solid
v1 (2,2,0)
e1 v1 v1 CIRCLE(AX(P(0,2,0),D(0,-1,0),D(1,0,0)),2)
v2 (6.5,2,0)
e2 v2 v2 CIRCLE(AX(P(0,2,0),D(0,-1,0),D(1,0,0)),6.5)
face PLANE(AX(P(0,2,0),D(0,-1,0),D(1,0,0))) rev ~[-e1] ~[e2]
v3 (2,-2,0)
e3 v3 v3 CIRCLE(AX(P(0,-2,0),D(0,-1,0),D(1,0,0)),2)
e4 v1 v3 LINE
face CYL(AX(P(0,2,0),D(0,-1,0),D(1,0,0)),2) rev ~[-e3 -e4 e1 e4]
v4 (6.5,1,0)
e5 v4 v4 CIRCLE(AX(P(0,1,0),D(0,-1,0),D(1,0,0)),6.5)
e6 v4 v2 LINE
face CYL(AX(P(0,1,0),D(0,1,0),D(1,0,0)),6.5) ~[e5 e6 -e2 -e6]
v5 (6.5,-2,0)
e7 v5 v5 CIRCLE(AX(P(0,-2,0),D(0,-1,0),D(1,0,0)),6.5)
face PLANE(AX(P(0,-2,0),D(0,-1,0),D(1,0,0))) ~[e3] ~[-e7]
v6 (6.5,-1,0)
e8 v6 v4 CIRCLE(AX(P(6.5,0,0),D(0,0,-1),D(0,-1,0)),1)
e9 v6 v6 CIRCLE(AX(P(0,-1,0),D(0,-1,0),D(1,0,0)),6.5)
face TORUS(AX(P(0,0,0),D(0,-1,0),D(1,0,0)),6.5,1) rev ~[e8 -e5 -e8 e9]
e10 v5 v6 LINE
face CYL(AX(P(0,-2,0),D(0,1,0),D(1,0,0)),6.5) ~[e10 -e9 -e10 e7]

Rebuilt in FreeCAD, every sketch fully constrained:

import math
import FreeCAD as App
import Part
import Sketcher
from FreeCAD import Vector
Q = App.Units.Quantity

doc = App.newDocument("Part")
body = doc.addObject("PartDesign::Body", "Body")

# Sketch on XY plane
sketch1 = body.newObject("Sketcher::SketchObject", "Sketch")
sketch1.AttachmentSupport = (doc.getObject("XY_Plane"), [""])
sketch1.MapMode = "FlatFace"
sketch1.addGeometry(Part.LineSegment(Vector(2, 2, 0), Vector(2, -2, 0)), False)
sketch1.addGeometry(Part.LineSegment(Vector(2, -2, 0), Vector(6.5, -2, 0)), False)
sketch1.addGeometry(Part.LineSegment(Vector(6.5, -2, 0), Vector(6.5, -1, 0)), False)
sketch1.addGeometry(Part.ArcOfCircle(Part.Circle(Vector(6.5, 0, 0), Vector(0, 0, 1), 1), math.radians(90), math.radians(270)), False)
sketch1.addGeometry(Part.LineSegment(Vector(6.5, 1, 0), Vector(6.5, 2, 0)), False)
sketch1.addGeometry(Part.LineSegment(Vector(6.5, 2, 0), Vector(2, 2, 0)), False)
sketch1.addConstraint(Sketcher.Constraint("Coincident", 0, 2, 1, 1))
sketch1.addConstraint(Sketcher.Constraint("Coincident", 1, 2, 2, 1))
sketch1.addConstraint(Sketcher.Constraint("Coincident", 2, 2, 3, 2))
sketch1.addConstraint(Sketcher.Constraint("Coincident", 3, 1, 4, 1))
sketch1.addConstraint(Sketcher.Constraint("Coincident", 4, 2, 5, 1))
sketch1.addConstraint(Sketcher.Constraint("Coincident", 5, 2, 0, 1))
sketch1.addConstraint(Sketcher.Constraint("Vertical", 0))
sketch1.addConstraint(Sketcher.Constraint("Horizontal", 1))
sketch1.addConstraint(Sketcher.Constraint("Vertical", 2))
sketch1.addConstraint(Sketcher.Constraint("Vertical", 4))
sketch1.addConstraint(Sketcher.Constraint("Horizontal", 5))
sketch1.addConstraint(Sketcher.Constraint("Symmetric", 2, 2, 3, 1, -1))
sketch1.addConstraint(Sketcher.Constraint("Vertical", 3, 3, 1, 2))
sketch1.addConstraint(Sketcher.Constraint("Equal", 2, 4))
sketch1.addConstraint(Sketcher.Constraint("Radius", 3, Q("1 mm")))
sketch1.addConstraint(Sketcher.Constraint("DistanceY", 0, 2, 0, 1, Q("4 mm")))
sketch1.addConstraint(Sketcher.Constraint("DistanceX", 1, 1, 1, 2, Q("4.5 mm")))
sketch1.addConstraint(Sketcher.Constraint("DistanceX", -1, 1, 0, 2, Q("2 mm")))
revolution = body.newObject("PartDesign::Revolution", "Revolution")
revolution.Profile = sketch1
revolution.ReferenceAxis = (sketch1, ["V_Axis"])
revolution.Angle = 360

doc.recompute()
